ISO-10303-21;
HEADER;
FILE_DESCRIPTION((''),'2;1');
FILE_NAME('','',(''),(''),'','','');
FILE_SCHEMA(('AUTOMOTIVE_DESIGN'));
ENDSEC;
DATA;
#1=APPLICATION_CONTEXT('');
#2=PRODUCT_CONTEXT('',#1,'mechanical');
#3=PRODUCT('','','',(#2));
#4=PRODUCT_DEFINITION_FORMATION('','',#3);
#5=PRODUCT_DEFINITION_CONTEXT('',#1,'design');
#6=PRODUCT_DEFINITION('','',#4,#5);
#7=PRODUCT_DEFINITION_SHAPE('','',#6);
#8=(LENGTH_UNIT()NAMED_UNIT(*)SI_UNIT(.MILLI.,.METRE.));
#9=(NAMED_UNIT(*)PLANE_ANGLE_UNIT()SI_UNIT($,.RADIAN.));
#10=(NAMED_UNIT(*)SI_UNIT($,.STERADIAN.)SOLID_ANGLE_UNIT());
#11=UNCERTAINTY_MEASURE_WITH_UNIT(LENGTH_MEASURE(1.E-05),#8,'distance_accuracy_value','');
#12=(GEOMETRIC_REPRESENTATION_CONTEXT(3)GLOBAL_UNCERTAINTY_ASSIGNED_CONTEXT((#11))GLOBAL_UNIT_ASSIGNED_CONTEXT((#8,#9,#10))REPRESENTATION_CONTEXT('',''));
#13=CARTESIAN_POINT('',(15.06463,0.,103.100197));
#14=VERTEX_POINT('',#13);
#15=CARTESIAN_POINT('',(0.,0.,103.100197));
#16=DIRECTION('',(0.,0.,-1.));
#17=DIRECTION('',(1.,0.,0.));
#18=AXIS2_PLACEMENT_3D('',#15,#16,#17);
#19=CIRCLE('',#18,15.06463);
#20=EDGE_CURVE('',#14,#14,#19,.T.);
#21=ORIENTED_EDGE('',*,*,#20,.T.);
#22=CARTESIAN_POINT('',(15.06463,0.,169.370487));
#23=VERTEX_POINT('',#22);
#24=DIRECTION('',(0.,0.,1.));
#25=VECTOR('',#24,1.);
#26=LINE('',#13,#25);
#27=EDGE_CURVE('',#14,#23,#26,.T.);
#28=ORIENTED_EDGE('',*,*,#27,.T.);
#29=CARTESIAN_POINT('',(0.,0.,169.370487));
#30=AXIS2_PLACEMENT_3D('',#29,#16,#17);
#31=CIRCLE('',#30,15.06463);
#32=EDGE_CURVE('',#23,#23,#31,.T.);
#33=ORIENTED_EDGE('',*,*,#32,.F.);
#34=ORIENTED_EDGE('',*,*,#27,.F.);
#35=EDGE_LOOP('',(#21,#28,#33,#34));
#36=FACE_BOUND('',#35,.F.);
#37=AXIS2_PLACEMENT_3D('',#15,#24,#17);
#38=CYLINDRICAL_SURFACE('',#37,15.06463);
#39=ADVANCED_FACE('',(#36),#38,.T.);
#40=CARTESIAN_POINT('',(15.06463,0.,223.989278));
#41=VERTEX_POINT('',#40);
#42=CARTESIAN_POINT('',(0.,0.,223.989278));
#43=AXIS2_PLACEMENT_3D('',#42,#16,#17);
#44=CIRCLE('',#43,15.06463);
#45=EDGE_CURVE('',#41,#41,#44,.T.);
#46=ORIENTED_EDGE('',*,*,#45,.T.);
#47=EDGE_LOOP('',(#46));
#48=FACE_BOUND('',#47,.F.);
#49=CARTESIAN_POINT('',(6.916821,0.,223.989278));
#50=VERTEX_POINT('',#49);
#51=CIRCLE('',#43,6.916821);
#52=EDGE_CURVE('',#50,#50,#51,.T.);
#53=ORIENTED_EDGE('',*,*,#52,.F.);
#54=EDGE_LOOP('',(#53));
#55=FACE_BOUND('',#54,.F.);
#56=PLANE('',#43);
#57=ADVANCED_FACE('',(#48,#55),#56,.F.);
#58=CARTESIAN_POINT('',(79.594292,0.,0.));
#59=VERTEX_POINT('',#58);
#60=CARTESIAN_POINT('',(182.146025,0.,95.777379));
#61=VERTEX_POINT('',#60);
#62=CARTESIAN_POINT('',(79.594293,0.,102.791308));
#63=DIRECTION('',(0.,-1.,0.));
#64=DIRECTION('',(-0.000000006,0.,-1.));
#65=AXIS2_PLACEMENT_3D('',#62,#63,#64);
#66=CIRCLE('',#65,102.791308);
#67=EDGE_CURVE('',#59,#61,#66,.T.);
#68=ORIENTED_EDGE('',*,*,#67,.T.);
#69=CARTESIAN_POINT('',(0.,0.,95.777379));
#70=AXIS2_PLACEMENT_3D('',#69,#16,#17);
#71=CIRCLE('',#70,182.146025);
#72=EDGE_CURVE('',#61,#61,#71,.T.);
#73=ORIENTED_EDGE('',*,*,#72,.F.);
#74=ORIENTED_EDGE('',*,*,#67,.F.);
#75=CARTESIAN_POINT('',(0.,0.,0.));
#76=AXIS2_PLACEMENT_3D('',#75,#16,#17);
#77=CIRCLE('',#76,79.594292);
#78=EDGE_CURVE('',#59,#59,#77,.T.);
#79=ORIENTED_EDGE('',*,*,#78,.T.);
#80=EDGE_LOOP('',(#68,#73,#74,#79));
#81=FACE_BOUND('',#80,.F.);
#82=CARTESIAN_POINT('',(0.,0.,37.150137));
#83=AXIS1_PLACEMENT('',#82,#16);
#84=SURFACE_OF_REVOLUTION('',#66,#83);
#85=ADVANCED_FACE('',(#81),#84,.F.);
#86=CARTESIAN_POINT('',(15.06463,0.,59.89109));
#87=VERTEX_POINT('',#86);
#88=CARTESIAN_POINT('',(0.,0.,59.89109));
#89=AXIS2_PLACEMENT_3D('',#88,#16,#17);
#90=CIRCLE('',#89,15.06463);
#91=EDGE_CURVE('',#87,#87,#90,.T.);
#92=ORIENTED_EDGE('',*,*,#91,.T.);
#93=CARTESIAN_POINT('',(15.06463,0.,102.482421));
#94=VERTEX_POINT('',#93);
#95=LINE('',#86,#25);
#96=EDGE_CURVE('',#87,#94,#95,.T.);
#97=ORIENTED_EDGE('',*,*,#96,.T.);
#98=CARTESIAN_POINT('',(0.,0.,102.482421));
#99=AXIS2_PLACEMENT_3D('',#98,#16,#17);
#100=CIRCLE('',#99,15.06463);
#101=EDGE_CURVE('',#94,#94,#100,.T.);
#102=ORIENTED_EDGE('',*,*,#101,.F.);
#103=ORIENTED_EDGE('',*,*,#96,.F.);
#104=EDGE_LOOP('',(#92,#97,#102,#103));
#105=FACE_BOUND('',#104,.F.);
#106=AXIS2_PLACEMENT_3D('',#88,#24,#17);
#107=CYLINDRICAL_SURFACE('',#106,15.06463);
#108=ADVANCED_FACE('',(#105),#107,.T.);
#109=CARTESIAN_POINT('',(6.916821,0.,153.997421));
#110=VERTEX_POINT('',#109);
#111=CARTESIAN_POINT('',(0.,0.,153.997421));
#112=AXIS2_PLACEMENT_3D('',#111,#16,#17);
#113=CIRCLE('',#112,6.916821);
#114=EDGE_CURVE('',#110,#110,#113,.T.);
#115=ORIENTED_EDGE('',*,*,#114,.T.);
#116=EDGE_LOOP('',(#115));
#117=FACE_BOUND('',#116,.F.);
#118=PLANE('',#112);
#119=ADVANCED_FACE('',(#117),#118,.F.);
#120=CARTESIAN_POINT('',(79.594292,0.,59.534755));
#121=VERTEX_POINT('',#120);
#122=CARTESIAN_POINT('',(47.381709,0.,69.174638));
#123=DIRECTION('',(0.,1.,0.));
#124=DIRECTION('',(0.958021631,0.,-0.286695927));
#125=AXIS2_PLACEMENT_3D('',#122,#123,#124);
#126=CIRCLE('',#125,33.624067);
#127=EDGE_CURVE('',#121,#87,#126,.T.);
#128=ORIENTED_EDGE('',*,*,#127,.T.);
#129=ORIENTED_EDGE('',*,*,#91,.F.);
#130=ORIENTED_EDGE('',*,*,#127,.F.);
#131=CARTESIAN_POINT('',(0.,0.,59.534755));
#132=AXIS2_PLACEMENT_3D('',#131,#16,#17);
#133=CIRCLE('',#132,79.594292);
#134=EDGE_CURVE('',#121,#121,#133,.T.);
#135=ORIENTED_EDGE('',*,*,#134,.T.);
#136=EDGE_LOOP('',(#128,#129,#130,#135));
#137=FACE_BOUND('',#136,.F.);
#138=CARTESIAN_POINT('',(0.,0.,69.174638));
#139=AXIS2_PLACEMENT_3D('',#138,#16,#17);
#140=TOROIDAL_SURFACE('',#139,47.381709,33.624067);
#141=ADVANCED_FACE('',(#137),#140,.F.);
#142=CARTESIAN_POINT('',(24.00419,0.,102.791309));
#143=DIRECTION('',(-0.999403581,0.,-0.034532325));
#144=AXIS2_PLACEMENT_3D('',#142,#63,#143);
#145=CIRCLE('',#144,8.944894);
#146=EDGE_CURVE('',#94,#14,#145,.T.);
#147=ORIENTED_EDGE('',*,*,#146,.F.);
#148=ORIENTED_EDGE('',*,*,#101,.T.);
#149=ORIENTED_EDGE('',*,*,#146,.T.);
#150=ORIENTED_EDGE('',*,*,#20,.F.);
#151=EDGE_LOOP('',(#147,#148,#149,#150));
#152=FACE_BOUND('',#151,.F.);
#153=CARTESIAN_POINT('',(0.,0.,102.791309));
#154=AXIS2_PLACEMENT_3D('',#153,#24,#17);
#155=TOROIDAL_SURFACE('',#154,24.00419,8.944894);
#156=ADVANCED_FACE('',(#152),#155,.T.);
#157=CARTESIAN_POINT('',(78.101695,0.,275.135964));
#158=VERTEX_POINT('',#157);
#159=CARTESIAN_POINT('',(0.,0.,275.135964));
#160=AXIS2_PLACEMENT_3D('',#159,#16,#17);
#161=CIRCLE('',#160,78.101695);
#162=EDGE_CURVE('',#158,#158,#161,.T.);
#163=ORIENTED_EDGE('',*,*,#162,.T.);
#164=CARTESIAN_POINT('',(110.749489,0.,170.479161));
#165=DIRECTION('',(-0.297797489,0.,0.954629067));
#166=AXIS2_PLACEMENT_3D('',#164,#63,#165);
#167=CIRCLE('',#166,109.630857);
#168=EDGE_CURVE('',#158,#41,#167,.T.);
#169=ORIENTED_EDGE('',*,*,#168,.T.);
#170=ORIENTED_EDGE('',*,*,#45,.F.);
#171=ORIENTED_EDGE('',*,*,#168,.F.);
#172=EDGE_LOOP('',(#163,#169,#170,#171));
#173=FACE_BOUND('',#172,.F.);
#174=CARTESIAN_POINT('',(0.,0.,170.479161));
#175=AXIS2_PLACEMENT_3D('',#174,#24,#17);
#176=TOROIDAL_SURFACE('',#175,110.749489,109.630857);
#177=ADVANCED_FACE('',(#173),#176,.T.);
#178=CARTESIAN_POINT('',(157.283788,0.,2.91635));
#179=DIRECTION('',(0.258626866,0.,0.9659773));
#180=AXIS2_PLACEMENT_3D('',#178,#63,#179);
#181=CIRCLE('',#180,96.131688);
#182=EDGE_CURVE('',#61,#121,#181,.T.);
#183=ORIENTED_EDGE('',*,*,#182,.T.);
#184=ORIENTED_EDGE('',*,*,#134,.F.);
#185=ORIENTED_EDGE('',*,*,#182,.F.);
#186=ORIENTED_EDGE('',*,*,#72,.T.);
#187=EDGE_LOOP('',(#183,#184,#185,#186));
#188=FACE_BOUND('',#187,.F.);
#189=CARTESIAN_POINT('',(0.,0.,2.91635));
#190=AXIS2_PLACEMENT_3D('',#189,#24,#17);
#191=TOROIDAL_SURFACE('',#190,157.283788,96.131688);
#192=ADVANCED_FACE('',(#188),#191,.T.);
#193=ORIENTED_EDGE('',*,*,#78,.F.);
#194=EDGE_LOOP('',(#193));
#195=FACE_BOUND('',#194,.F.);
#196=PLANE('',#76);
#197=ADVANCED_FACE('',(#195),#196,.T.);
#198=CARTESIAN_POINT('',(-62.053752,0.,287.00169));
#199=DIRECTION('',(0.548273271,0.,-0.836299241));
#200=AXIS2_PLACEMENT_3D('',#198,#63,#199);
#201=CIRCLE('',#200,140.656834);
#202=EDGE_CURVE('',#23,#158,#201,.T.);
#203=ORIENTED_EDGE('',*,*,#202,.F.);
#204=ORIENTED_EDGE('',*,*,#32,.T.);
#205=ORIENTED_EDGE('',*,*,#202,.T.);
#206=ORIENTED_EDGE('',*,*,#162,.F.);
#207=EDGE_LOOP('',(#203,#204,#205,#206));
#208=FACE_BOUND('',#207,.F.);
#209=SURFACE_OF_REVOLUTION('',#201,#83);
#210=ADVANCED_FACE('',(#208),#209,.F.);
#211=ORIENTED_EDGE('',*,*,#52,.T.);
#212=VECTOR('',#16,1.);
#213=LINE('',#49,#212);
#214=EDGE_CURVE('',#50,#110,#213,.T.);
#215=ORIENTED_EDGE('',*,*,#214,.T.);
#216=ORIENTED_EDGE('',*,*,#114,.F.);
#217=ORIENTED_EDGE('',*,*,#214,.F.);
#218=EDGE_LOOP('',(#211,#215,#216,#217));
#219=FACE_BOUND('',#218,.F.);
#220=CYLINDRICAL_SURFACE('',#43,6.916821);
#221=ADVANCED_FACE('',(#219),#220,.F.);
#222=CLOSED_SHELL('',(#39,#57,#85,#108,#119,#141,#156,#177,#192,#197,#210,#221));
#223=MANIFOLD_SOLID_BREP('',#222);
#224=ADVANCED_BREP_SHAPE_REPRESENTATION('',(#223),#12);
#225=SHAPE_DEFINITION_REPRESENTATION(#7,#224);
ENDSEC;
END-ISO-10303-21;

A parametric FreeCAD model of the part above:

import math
import FreeCAD as App
import Part
import Sketcher

V = App.Vector

doc = App.newDocument("Part")
body = doc.addObject("PartDesign::Body", "Body")

sketch1 = body.newObject("Sketcher::SketchObject", "Sketch")
sketch1.AttachmentSupport = (doc.getObject("XZ_Plane"), [""])
sketch1.MapMode = "FlatFace"
sketch1.addGeometry([
    Part.LineSegment(V(0, 0, 0), V(79.594292, 0, 0)),
    Part.ArcOfCircle(Part.Circle(V(79.594293, 102.791308, 0), V(0, 0, 1), 102.791308), math.radians(-90), math.radians(-3.912598)),
    Part.ArcOfCircle(Part.Circle(V(157.283788, 2.91635, 0), V(0, 0, 1), 96.131688), math.radians(75.011399), math.radians(143.916253)),
    Part.ArcOfCircle(Part.Circle(V(47.381709, 69.174638, 0), V(0, 0, 1), 33.624067), math.radians(-163.972523), math.radians(-16.660249)),
    Part.LineSegment(V(15.06463, 59.89109, 0), V(15.06463, 102.482421, 0)),
    Part.ArcOfCircle(Part.Circle(V(24.00419, 102.791309, 0), V(0, 0, 1), 8.944894), math.radians(-178.02105), math.radians(178.02105)),
    Part.LineSegment(V(15.06463, 103.100197, 0), V(15.06463, 169.370487, 0)),
    Part.ArcOfCircle(Part.Circle(V(-62.053752, 287.00169, 0), V(0, 0, 1), 140.656834), math.radians(-56.751367), math.radians(-4.839189)),
    Part.ArcOfCircle(Part.Circle(V(110.749489, 170.479161, 0), V(0, 0, 1), 109.630857), math.radians(107.325363), math.radians(150.784645)),
    Part.LineSegment(V(15.06463, 223.989278, 0), V(6.916821, 223.989278, 0)),
    Part.LineSegment(V(6.916821, 223.989278, 0), V(6.916821, 153.997421, 0)),
    Part.LineSegment(V(6.916821, 153.997421, 0), V(0, 153.997421, 0)),
    Part.LineSegment(V(0, 153.997421, 0), V(0, 0, 0)),
], False)
sketch1.addConstraint([
    Sketcher.Constraint("Tangent", 0, 2, 1, 1),
    Sketcher.Constraint("Coincident", 1, 2, 2, 1),
    Sketcher.Constraint("Coincident", 2, 2, 3, 2),
    Sketcher.Constraint("Coincident", 3, 1, 4, 1),
    Sketcher.Constraint("Coincident", 4, 2, 5, 1),
    Sketcher.Constraint("Coincident", 5, 2, 6, 1),
    Sketcher.Constraint("Coincident", 6, 2, 7, 1),
    Sketcher.Constraint("Coincident", 7, 2, 8, 1),
    Sketcher.Constraint("Coincident", 8, 2, 9, 1),
    Sketcher.Constraint("Coincident", 9, 2, 10, 1),
    Sketcher.Constraint("Coincident", 10, 2, 11, 1),
    Sketcher.Constraint("Coincident", 11, 2, 12, 1),
    Sketcher.Constraint("Coincident", 12, 2, 0, 1),
    Sketcher.Constraint("Horizontal", 0),
    Sketcher.Constraint("Vertical", 4),
    Sketcher.Constraint("Vertical", 6),
    Sketcher.Constraint("Horizontal", 9),
    Sketcher.Constraint("Vertical", 10),
    Sketcher.Constraint("Horizontal", 11),
    Sketcher.Constraint("Vertical", 12),
    Sketcher.Constraint("Coincident", 12, 2, -1, 1),
    Sketcher.Constraint("Horizontal", 1, 3, 5, 3),
    Sketcher.Constraint("Vertical", 0, 2, 2, 2),
    Sketcher.Constraint("Vertical", 4, 2, 5, 2),
    Sketcher.Constraint("Vertical", 6, 2, 8, 2),
    Sketcher.Constraint("Radius", 1, 102.791308),
    Sketcher.Constraint("Radius", 2, 96.131688),
    Sketcher.Constraint("Radius", 3, 33.624067),
    Sketcher.Constraint("Radius", 5, 8.944894),
    Sketcher.Constraint("Radius", 7, 140.656834),
    Sketcher.Constraint("Radius", 8, 109.630857),
    Sketcher.Constraint("DistanceY", 4, 2, 10, 2, 51.515),
    Sketcher.Constraint("DistanceX", 0, 1, 0, 2, 79.594292),
    Sketcher.Constraint("DistanceX", 9, 2, 9, 1, 8.147809),
    Sketcher.Constraint("DistanceX", 11, 2, 11, 1, 6.916821),
    Sketcher.Constraint("DistanceY", 4, 1, 4, 2, 42.591331),
    Sketcher.Constraint("DistanceY", 6, 1, 6, 2, 66.27029),
    Sketcher.Constraint("DistanceY", 12, 2, 12, 1, 153.997421),
    Sketcher.Constraint("DistanceX", 5, 3, 2, 3, 133.279598),
    Sketcher.Constraint("DistanceX", 5, 3, 8, 3, 86.745299),
    Sketcher.Constraint("DistanceY", 10, 2, 10, 1, 69.991857),
    Sketcher.Constraint("DistanceY", -1, 1, 2, 3, 2.91635),
    Sketcher.Constraint("DistanceY", -1, 1, 7, 3, 287.00169),
])
revolution = body.newObject("PartDesign::Revolution", "Revolution")
revolution.Profile = sketch1
revolution.ReferenceAxis = (sketch1, ["V_Axis"])
revolution.Angle = 360

doc.recompute()
